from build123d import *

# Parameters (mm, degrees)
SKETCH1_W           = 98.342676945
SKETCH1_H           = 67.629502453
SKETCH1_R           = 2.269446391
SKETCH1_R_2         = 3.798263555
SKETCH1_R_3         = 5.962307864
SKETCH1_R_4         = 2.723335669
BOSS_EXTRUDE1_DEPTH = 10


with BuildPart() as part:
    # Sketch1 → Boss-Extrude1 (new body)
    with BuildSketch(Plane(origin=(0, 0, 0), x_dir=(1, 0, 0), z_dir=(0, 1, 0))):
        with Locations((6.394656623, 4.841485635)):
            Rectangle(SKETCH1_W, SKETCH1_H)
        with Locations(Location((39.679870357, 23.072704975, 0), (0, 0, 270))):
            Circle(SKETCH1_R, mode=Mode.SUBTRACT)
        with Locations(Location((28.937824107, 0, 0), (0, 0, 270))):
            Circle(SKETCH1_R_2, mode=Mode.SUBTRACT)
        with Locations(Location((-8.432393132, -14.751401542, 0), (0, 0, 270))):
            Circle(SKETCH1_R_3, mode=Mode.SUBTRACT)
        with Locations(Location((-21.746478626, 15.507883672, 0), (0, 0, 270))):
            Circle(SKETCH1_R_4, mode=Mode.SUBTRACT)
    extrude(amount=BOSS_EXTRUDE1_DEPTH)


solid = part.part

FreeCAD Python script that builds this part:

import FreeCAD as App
import Part
import Sketcher

doc = App.newDocument("Part")
params = doc.addObject("Spreadsheet::Sheet", "Params")
for row, (alias, value) in enumerate([
    ("pad1_length", "10 mm"),
], start=1):
    params.set(f"A{row}", alias)
    params.set(f"B{row}", "=" + value)
    params.setAlias(f"B{row}", alias)

body = doc.addObject("PartDesign::Body", "Body")

# Sketch on XZ plane
sketch1 = body.newObject("Sketcher::SketchObject", "Sketch")
sketch1.AttachmentSupport = (doc.getObject("XZ_Plane"), [""])
sketch1.MapMode = "FlatFace"
sketch1.addGeometry(Part.LineSegment(App.Vector(-42.776682, -38.656237, 0), App.Vector(-42.776682, 28.973266, 0)), False)
sketch1.addGeometry(Part.LineSegment(App.Vector(-42.776682, 28.973266, 0), App.Vector(55.565995, 28.973266, 0)), False)
sketch1.addGeometry(Part.LineSegment(App.Vector(55.565995, 28.973266, 0), App.Vector(55.565995, -38.656237, 0)), False)
sketch1.addGeometry(Part.LineSegment(App.Vector(55.565995, -38.656237, 0), App.Vector(-42.776682, -38.656237, 0)), False)
sketch1.addGeometry(Part.Circle(App.Vector(-8.432393, 14.751402, 0), App.Vector(0, 0, 1), 5.962308), False)
sketch1.addGeometry(Part.Circle(App.Vector(28.937824, 0, 0), App.Vector(0, 0, 1), 3.798264), False)
sketch1.addGeometry(Part.Circle(App.Vector(-21.746479, -15.507884, 0), App.Vector(0, 0, 1), 2.723336), False)
sketch1.addGeometry(Part.Circle(App.Vector(39.67987, -23.072705, 0), App.Vector(0, 0, 1), 2.269446), False)
sketch1.addConstraint(Sketcher.Constraint("Coincident", 0, 2, 1, 1))
sketch1.addConstraint(Sketcher.Constraint("Coincident", 1, 2, 2, 1))
sketch1.addConstraint(Sketcher.Constraint("Coincident", 2, 2, 3, 1))
sketch1.addConstraint(Sketcher.Constraint("Coincident", 3, 2, 0, 1))
sketch1.addConstraint(Sketcher.Constraint("Vertical", 0))
sketch1.addConstraint(Sketcher.Constraint("Horizontal", 1))
sketch1.addConstraint(Sketcher.Constraint("Vertical", 2))
sketch1.addConstraint(Sketcher.Constraint("Horizontal", 3))
sketch1.addConstraint(Sketcher.Constraint("PointOnObject", 5, 3, -1))
sketch1.addConstraint(Sketcher.Constraint("Diameter", 6, 5.446671))
sketch1.addConstraint(Sketcher.Constraint("Diameter", 4, 11.924616))
sketch1.addConstraint(Sketcher.Constraint("Diameter", 5, 7.596527))
sketch1.addConstraint(Sketcher.Constraint("Diameter", 7, 4.538893))
sketch1.addConstraint(Sketcher.Constraint("DistanceY", -1, 1, 4, 3, 14.751402))
sketch1.addConstraint(Sketcher.Constraint("DistanceX", 1, 1, 1, 2, 98.342677))
sketch1.addConstraint(Sketcher.Constraint("DistanceY", 0, 1, 0, 2, 67.629502))
sketch1.addConstraint(Sketcher.Constraint("DistanceX", 6, 3, -1, 1, 21.746479))
sketch1.addConstraint(Sketcher.Constraint("DistanceX", -1, 1, 7, 3, 39.67987))
sketch1.addConstraint(Sketcher.Constraint("DistanceX", 0, 2, -1, 1, 42.776682))
sketch1.addConstraint(Sketcher.Constraint("DistanceY", 7, 3, 6, 3, 7.564821))
sketch1.addConstraint(Sketcher.Constraint("DistanceX", 0, 2, 4, 3, 34.344289))
sketch1.addConstraint(Sketcher.Constraint("DistanceY", 6, 3, 0, 2, 44.481149))
sketch1.addConstraint(Sketcher.Constraint("DistanceX", 5, 3, 1, 2, 26.628171))
sketch1.addConstraint(Sketcher.Constraint("DistanceY", 2, 2, 4, 3, 53.407638))
pad1 = body.newObject("PartDesign::Pad", "Pad")
pad1.Profile = sketch1
pad1.setExpression("Length", "Params.pad1_length")
pad1.Reversed = True

doc.recompute()
